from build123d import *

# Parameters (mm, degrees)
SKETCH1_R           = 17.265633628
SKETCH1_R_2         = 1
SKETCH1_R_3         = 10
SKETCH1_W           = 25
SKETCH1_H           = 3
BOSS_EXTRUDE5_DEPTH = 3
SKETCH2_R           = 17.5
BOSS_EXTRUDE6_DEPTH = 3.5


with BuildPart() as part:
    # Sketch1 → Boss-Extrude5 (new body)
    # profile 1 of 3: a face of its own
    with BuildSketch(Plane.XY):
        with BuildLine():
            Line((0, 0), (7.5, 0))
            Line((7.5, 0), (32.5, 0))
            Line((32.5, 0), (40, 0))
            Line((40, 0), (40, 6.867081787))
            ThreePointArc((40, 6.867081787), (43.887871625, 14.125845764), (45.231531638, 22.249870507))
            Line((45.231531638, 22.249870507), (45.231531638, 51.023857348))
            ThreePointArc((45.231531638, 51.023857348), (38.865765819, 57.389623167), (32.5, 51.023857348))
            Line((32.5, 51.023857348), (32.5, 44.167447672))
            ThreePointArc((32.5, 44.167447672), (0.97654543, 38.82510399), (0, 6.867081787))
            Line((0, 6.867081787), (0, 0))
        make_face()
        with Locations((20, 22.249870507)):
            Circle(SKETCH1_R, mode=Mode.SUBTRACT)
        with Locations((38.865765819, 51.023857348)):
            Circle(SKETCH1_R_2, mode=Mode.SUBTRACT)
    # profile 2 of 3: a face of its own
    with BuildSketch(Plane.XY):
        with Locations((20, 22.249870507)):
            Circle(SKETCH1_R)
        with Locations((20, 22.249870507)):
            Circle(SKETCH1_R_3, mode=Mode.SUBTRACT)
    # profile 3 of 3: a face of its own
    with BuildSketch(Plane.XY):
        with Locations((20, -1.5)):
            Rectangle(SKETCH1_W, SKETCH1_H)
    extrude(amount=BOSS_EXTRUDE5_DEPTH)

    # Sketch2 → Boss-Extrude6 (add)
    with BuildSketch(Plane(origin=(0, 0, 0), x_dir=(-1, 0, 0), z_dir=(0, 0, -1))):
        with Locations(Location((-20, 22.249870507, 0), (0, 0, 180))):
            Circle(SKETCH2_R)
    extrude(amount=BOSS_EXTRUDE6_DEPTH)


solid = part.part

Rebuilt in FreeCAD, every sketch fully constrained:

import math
import FreeCAD as App
import Part
import Sketcher
from FreeCAD import Vector

doc = App.newDocument("Part")
body = doc.addObject("PartDesign::Body", "Body")

sketch1 = body.newObject("Sketcher::SketchObject", "Sketch")
sketch1.AttachmentSupport = (doc.getObject("XY_Plane"), [""])
sketch1.MapMode = "FlatFace"
sketch1.addGeometry(Part.LineSegment(Vector(0, 0, 0), Vector(7.5, 0, 0)), False)
sketch1.addGeometry(Part.LineSegment(Vector(7.5, 0, 0), Vector(7.5, -3, 0)), False)
sketch1.addGeometry(Part.LineSegment(Vector(7.5, -3, 0), Vector(32.5, -3, 0)), False)
sketch1.addGeometry(Part.LineSegment(Vector(32.5, -3, 0), Vector(32.5, 0, 0)), False)
sketch1.addGeometry(Part.LineSegment(Vector(32.5, 0, 0), Vector(40, 0, 0)), False)
sketch1.addGeometry(Part.LineSegment(Vector(40, 0, 0), Vector(40, 6.9, 0)), False)
sketch1.addGeometry(Part.ArcOfCircle(Part.Circle(Vector(20, 22.2, 0), Vector(0, 0, 1), 25.2), math.radians(-38), math.radians(0)), False)
sketch1.addGeometry(Part.LineSegment(Vector(45.2, 22.2, 0), Vector(45.2, 51, 0)), False)
sketch1.addGeometry(Part.ArcOfCircle(Part.Circle(Vector(38.9, 51, 0), Vector(0, 0, 1), 6.4), math.radians(0), math.radians(180)), False)
sketch1.addGeometry(Part.LineSegment(Vector(32.5, 51, 0), Vector(32.5, 44.2, 0)), False)
sketch1.addGeometry(Part.ArcOfCircle(Part.Circle(Vector(20, 22.2, 0), Vector(0, 0, 1), 25.2), math.radians(60), math.radians(218)), False)
sketch1.addGeometry(Part.LineSegment(Vector(0, 6.9, 0), Vector(0, 0, 0)), False)
sketch1.addGeometry(Part.Circle(Vector(38.9, 51, 0), Vector(0, 0, 1), 1), False)
sketch1.addGeometry(Part.Circle(Vector(20, 22.2, 0), Vector(0, 0, 1), 10), False)
sketch1.addConstraint(Sketcher.Constraint("Coincident", 0, 2, 1, 1))
sketch1.addConstraint(Sketcher.Constraint("Coincident", 1, 2, 2, 1))
sketch1.addConstraint(Sketcher.Constraint("Coincident", 2, 2, 3, 1))
sketch1.addConstraint(Sketcher.Constraint("Coincident", 3, 2, 4, 1))
sketch1.addConstraint(Sketcher.Constraint("Coincident", 4, 2, 5, 1))
sketch1.addConstraint(Sketcher.Constraint("Coincident", 5, 2, 6, 1))
sketch1.addConstraint(Sketcher.Constraint("Tangent", 6, 2, 7, 1))
sketch1.addConstraint(Sketcher.Constraint("Tangent", 7, 2, 8, 1))
sketch1.addConstraint(Sketcher.Constraint("Tangent", 8, 2, 9, 1))
sketch1.addConstraint(Sketcher.Constraint("Coincident", 9, 2, 10, 1))
sketch1.addConstraint(Sketcher.Constraint("Coincident", 10, 2, 11, 1))
sketch1.addConstraint(Sketcher.Constraint("Coincident", 11, 2, 0, 1))
sketch1.addConstraint(Sketcher.Constraint("Horizontal", 0))
sketch1.addConstraint(Sketcher.Constraint("Vertical", 1))
sketch1.addConstraint(Sketcher.Constraint("Horizontal", 2))
sketch1.addConstraint(Sketcher.Constraint("Vertical", 3))
sketch1.addConstraint(Sketcher.Constraint("Horizontal", 4))
sketch1.addConstraint(Sketcher.Constraint("Vertical", 5))
sketch1.addConstraint(Sketcher.Constraint("Vertical", 7))
sketch1.addConstraint(Sketcher.Constraint("Vertical", 9))
sketch1.addConstraint(Sketcher.Constraint("Vertical", 11))
sketch1.addConstraint(Sketcher.Constraint("Coincident", 11, 2, -1, 1))
sketch1.addConstraint(Sketcher.Constraint("Coincident", 10, 3, 6, 3))
sketch1.addConstraint(Sketcher.Constraint("Coincident", 12, 3, 8, 3))
sketch1.addConstraint(Sketcher.Constraint("Coincident", 13, 3, 6, 3))
sketch1.addConstraint(Sketcher.Constraint("Equal", 6, 10))
sketch1.addConstraint(Sketcher.Constraint("PointOnObject", 3, 2, -1))
sketch1.addConstraint(Sketcher.Constraint("Horizontal", 5, 2, 10, 2))
sketch1.addConstraint(Sketcher.Constraint("Vertical", 3, 2, 8, 2))
sketch1.addConstraint(Sketcher.Constraint("Equal", 0, 4))
sketch1.addConstraint(Sketcher.Constraint("Diameter", 12, 2.0))
sketch1.addConstraint(Sketcher.Constraint("Diameter", 13, 20.0))
sketch1.addConstraint(Sketcher.Constraint("DistanceX", 2, 1, 2, 2, 25.0))
sketch1.addConstraint(Sketcher.Constraint("DistanceY", 1, 2, 1, 1, 3.0))
sketch1.addConstraint(Sketcher.Constraint("DistanceX", 0, 1, 0, 2, 7.5))
sketch1.addConstraint(Sketcher.Constraint("Radius", 6, 25.231532))
sketch1.addConstraint(Sketcher.Constraint("DistanceY", 5, 1, 5, 2, 6.867082))
sketch1.addConstraint(Sketcher.Constraint("DistanceY", 9, 2, 9, 1, 6.85641))
pad1 = body.newObject("PartDesign::Pad", "Pad")
pad1.Profile = sketch1
pad1.Length = 3

sketch2 = body.newObject("Sketcher::SketchObject", "Sketch001")
sketch2.AttachmentSupport = (doc.getObject("XY_Plane"), [""])
sketch2.MapMode = "FlatFace"
sketch2.addGeometry(Part.Circle(Vector(20, 22, 0), Vector(0, 0, 1), 18), False)
sketch2.addConstraint(Sketcher.Constraint("Diameter", 0, 35.0))
sketch2.addConstraint(Sketcher.Constraint("DistanceX", -1, 1, 0, 3, 20.0))
sketch2.addConstraint(Sketcher.Constraint("DistanceY", -1, 1, 0, 3, 22.249871))
pad2 = body.newObject("PartDesign::Pad", "Pad001")
pad2.Profile = sketch2
pad2.Length = 3.5
pad2.Reversed = True

doc.recompute()
